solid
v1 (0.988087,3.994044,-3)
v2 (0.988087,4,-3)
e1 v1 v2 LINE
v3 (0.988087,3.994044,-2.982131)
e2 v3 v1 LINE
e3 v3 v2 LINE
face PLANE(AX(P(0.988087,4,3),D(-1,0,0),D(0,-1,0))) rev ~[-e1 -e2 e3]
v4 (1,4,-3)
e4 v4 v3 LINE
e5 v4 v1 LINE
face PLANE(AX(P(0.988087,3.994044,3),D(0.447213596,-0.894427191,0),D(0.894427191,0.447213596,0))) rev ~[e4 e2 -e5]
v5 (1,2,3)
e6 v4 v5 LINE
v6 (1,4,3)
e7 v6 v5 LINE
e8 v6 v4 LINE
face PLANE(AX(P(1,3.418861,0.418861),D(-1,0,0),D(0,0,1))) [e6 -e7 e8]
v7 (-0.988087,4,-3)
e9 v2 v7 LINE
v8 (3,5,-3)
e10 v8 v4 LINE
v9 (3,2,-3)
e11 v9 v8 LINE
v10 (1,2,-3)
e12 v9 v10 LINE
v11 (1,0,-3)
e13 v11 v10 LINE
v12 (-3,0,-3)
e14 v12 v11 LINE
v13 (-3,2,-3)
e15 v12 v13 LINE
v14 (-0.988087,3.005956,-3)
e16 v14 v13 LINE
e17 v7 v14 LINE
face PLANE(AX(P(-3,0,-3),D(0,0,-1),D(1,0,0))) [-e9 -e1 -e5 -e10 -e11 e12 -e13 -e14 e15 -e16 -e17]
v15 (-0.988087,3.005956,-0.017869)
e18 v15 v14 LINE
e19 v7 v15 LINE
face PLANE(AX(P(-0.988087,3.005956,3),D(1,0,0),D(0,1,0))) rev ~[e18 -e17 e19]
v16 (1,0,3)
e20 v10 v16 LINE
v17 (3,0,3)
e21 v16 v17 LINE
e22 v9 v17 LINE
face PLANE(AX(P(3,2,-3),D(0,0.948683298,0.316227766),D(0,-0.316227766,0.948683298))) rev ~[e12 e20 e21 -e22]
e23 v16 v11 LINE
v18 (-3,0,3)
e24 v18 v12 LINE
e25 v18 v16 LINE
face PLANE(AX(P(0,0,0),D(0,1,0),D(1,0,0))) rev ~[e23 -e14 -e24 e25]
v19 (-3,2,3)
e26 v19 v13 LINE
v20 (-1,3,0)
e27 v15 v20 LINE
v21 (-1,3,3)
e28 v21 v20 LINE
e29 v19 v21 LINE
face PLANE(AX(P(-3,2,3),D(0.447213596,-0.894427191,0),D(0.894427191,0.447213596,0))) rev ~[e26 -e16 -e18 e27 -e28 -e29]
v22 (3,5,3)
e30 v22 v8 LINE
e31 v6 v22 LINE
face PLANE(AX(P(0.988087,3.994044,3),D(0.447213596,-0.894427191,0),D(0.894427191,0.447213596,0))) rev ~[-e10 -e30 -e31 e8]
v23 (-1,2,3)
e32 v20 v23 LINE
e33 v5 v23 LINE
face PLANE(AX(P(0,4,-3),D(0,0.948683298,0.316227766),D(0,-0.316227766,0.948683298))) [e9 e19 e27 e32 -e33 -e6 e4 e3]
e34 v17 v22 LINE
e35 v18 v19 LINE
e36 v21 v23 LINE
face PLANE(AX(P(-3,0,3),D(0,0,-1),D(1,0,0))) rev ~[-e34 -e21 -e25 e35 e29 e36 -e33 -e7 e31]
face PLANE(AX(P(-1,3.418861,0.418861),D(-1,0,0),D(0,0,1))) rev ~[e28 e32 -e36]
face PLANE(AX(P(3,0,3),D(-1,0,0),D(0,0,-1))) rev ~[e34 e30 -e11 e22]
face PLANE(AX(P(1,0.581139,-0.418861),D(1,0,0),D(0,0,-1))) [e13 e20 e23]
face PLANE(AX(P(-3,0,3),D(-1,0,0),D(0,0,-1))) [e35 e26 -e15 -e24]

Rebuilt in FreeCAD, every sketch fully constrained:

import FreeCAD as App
import Part
import Sketcher

doc = App.newDocument("Part")
body = doc.addObject("PartDesign::Body", "Body")

# Sketch on XZ plane
sketch1 = body.newObject("Sketcher::SketchObject", "Sketch")
sketch1.AttachmentSupport = (doc.getObject("XZ_Plane"), [""])
sketch1.MapMode = "FlatFace"
sketch1.addGeometry([
    Part.LineSegment(App.Vector(-3, -3, 0), App.Vector(-3, 3, 0)),
    Part.LineSegment(App.Vector(-3, 3, 0), App.Vector(3, 3, 0)),
    Part.LineSegment(App.Vector(3, 3, 0), App.Vector(3, -3, 0)),
    Part.LineSegment(App.Vector(3, -3, 0), App.Vector(-3, -3, 0)),
], False)
sketch1.addConstraint([
    Sketcher.Constraint("Coincident", 0, 2, 1, 1),
    Sketcher.Constraint("Coincident", 1, 2, 2, 1),
    Sketcher.Constraint("Coincident", 2, 2, 3, 1),
    Sketcher.Constraint("Coincident", 3, 2, 0, 1),
    Sketcher.Constraint("Vertical", 0),
    Sketcher.Constraint("Horizontal", 1),
    Sketcher.Constraint("Vertical", 2),
    Sketcher.Constraint("Horizontal", 3),
    Sketcher.Constraint("Symmetric", 0, 2, 2, 2, -1, 1),
    Sketcher.Constraint("Equal", 3, 0),
    Sketcher.Constraint("DistanceX", 1, 1, 1, 2, 6.0),
])
pad1 = body.newObject("PartDesign::Pad", "Pad")
pad1.Profile = sketch1
pad1.Length = 5
pad1.Reversed = True

# Sketch on XY plane
sketch2 = body.newObject("Sketcher::SketchObject", "Sketch001")
sketch2.AttachmentSupport = (doc.getObject("XY_Plane"), [""])
sketch2.MapMode = "FlatFace"
sketch2.AttachmentOffset = App.Placement(App.Vector(0, 0, 3), App.Rotation())
sketch2.addGeometry([
    Part.LineSegment(App.Vector(-3, 5, 0), App.Vector(-3, 2, 0)),  # 0
    Part.LineSegment(App.Vector(-3, 2, 0), App.Vector(-0.988, 3.006, 0)),  # 1
    Part.LineSegment(App.Vector(-0.988, 3.006, 0), App.Vector(-0.988, 4, 0)),  # 2
    Part.LineSegment(App.Vector(-0.988, 4, 0), App.Vector(0.988, 4, 0)),  # 3
    Part.LineSegment(App.Vector(0.988, 4, 0), App.Vector(0.988, 3.994, 0)),  # 4
    Part.LineSegment(App.Vector(0.988, 3.994, 0), App.Vector(3, 5, 0)),  # 5
    Part.LineSegment(App.Vector(3, 5, 0), App.Vector(-3, 5, 0)),  # 6
], False)
sketch2.addConstraint([
    Sketcher.Constraint("Coincident", 0, 2, 1, 1),
    Sketcher.Constraint("Coincident", 1, 2, 2, 1),
    Sketcher.Constraint("Coincident", 2, 2, 3, 1),
    Sketcher.Constraint("Coincident", 3, 2, 4, 1),
    Sketcher.Constraint("Coincident", 4, 2, 5, 1),
    Sketcher.Constraint("Coincident", 5, 2, 6, 1),
    Sketcher.Constraint("Coincident", 6, 2, 0, 1),
    Sketcher.Constraint("Vertical", 0),
    Sketcher.Constraint("Vertical", 2),
    Sketcher.Constraint("Horizontal", 3),
    Sketcher.Constraint("Vertical", 4),
    Sketcher.Constraint("Horizontal", 6),
    Sketcher.Constraint("Parallel", 1, 5),
    Sketcher.Constraint("Equal", 1, 5),
    Sketcher.Constraint("DistanceX", 6, 2, 6, 1, 6.0),
    Sketcher.Constraint("DistanceY", 0, 2, 0, 1, 3.0),
    Sketcher.Constraint("DistanceX", 0, 2, -1, 1, 3.0),
    Sketcher.Constraint("DistanceY", -1, 1, 0, 2, 2.0),
    Sketcher.Constraint("DistanceY", -1, 1, 2, 2, 4.0),
    Sketcher.Constraint("DistanceX", 3, 1, 3, 2, 1.976175),
    Sketcher.Constraint("DistanceY", 2, 1, 2, 2, 0.994044),
])
pocket1 = body.newObject("PartDesign::Pocket", "Pocket")
pocket1.Profile = sketch2
pocket1.Length = 12

# Sketch on YZ plane
sketch3 = body.newObject("Sketcher::SketchObject", "Sketch002")
sketch3.AttachmentSupport = (doc.getObject("YZ_Plane"), [""])
sketch3.MapMode = "FlatFace"
sketch3.addGeometry([
    Part.LineSegment(App.Vector(2, 3, 0), App.Vector(4, -3, 0)),
    Part.LineSegment(App.Vector(4, -3, 0), App.Vector(4, 3, 0)),
    Part.LineSegment(App.Vector(4, 3, 0), App.Vector(2, 3, 0)),
], False)
sketch3.addConstraint([
    Sketcher.Constraint("Coincident", 0, 2, 1, 1),
    Sketcher.Constraint("Coincident", 1, 2, 2, 1),
    Sketcher.Constraint("Coincident", 2, 2, 0, 1),
    Sketcher.Constraint("Vertical", 1),
    Sketcher.Constraint("Horizontal", 2),
    Sketcher.Constraint("DistanceX", 2, 2, 2, 1, 2.0),
    Sketcher.Constraint("DistanceY", 1, 1, 1, 2, 6.0),
    Sketcher.Constraint("DistanceX", -1, 1, 0, 2, 4.0),
    Sketcher.Constraint("DistanceY", 0, 2, -1, 1, 3.0),
])
pocket2 = body.newObject("PartDesign::Pocket", "Pocket001")
pocket2.Profile = sketch3
pocket2.Length = 2
pocket2.Midplane = True

# Sketch on YZ plane
sketch4 = body.newObject("Sketcher::SketchObject", "Sketch003")
sketch4.AttachmentSupport = (doc.getObject("YZ_Plane"), [""])
sketch4.MapMode = "FlatFace"
sketch4.AttachmentOffset = App.Placement(App.Vector(0, 0, 3), App.Rotation())
sketch4.addGeometry([
    Part.LineSegment(App.Vector(2, -3, 0), App.Vector(0, 3, 0)),
    Part.LineSegment(App.Vector(0, 3, 0), App.Vector(0, -3, 0)),
    Part.LineSegment(App.Vector(0, -3, 0), App.Vector(2, -3, 0)),
], False)
sketch4.addConstraint([
    Sketcher.Constraint("Coincident", 0, 2, 1, 1),
    Sketcher.Constraint("Coincident", 1, 2, 2, 1),
    Sketcher.Constraint("Coincident", 2, 2, 0, 1),
    Sketcher.Constraint("Vertical", 1),
    Sketcher.Constraint("Horizontal", 2),
    Sketcher.Constraint("Symmetric", 0, 2, 1, 2, -1, 1),
    Sketcher.Constraint("DistanceX", 2, 1, 2, 2, 2.0),
    Sketcher.Constraint("DistanceY", 1, 2, 1, 1, 6.0),
])
pocket3 = body.newObject("PartDesign::Pocket", "Pocket002")
pocket3.Profile = sketch4
pocket3.Length = 2

doc.recompute()
